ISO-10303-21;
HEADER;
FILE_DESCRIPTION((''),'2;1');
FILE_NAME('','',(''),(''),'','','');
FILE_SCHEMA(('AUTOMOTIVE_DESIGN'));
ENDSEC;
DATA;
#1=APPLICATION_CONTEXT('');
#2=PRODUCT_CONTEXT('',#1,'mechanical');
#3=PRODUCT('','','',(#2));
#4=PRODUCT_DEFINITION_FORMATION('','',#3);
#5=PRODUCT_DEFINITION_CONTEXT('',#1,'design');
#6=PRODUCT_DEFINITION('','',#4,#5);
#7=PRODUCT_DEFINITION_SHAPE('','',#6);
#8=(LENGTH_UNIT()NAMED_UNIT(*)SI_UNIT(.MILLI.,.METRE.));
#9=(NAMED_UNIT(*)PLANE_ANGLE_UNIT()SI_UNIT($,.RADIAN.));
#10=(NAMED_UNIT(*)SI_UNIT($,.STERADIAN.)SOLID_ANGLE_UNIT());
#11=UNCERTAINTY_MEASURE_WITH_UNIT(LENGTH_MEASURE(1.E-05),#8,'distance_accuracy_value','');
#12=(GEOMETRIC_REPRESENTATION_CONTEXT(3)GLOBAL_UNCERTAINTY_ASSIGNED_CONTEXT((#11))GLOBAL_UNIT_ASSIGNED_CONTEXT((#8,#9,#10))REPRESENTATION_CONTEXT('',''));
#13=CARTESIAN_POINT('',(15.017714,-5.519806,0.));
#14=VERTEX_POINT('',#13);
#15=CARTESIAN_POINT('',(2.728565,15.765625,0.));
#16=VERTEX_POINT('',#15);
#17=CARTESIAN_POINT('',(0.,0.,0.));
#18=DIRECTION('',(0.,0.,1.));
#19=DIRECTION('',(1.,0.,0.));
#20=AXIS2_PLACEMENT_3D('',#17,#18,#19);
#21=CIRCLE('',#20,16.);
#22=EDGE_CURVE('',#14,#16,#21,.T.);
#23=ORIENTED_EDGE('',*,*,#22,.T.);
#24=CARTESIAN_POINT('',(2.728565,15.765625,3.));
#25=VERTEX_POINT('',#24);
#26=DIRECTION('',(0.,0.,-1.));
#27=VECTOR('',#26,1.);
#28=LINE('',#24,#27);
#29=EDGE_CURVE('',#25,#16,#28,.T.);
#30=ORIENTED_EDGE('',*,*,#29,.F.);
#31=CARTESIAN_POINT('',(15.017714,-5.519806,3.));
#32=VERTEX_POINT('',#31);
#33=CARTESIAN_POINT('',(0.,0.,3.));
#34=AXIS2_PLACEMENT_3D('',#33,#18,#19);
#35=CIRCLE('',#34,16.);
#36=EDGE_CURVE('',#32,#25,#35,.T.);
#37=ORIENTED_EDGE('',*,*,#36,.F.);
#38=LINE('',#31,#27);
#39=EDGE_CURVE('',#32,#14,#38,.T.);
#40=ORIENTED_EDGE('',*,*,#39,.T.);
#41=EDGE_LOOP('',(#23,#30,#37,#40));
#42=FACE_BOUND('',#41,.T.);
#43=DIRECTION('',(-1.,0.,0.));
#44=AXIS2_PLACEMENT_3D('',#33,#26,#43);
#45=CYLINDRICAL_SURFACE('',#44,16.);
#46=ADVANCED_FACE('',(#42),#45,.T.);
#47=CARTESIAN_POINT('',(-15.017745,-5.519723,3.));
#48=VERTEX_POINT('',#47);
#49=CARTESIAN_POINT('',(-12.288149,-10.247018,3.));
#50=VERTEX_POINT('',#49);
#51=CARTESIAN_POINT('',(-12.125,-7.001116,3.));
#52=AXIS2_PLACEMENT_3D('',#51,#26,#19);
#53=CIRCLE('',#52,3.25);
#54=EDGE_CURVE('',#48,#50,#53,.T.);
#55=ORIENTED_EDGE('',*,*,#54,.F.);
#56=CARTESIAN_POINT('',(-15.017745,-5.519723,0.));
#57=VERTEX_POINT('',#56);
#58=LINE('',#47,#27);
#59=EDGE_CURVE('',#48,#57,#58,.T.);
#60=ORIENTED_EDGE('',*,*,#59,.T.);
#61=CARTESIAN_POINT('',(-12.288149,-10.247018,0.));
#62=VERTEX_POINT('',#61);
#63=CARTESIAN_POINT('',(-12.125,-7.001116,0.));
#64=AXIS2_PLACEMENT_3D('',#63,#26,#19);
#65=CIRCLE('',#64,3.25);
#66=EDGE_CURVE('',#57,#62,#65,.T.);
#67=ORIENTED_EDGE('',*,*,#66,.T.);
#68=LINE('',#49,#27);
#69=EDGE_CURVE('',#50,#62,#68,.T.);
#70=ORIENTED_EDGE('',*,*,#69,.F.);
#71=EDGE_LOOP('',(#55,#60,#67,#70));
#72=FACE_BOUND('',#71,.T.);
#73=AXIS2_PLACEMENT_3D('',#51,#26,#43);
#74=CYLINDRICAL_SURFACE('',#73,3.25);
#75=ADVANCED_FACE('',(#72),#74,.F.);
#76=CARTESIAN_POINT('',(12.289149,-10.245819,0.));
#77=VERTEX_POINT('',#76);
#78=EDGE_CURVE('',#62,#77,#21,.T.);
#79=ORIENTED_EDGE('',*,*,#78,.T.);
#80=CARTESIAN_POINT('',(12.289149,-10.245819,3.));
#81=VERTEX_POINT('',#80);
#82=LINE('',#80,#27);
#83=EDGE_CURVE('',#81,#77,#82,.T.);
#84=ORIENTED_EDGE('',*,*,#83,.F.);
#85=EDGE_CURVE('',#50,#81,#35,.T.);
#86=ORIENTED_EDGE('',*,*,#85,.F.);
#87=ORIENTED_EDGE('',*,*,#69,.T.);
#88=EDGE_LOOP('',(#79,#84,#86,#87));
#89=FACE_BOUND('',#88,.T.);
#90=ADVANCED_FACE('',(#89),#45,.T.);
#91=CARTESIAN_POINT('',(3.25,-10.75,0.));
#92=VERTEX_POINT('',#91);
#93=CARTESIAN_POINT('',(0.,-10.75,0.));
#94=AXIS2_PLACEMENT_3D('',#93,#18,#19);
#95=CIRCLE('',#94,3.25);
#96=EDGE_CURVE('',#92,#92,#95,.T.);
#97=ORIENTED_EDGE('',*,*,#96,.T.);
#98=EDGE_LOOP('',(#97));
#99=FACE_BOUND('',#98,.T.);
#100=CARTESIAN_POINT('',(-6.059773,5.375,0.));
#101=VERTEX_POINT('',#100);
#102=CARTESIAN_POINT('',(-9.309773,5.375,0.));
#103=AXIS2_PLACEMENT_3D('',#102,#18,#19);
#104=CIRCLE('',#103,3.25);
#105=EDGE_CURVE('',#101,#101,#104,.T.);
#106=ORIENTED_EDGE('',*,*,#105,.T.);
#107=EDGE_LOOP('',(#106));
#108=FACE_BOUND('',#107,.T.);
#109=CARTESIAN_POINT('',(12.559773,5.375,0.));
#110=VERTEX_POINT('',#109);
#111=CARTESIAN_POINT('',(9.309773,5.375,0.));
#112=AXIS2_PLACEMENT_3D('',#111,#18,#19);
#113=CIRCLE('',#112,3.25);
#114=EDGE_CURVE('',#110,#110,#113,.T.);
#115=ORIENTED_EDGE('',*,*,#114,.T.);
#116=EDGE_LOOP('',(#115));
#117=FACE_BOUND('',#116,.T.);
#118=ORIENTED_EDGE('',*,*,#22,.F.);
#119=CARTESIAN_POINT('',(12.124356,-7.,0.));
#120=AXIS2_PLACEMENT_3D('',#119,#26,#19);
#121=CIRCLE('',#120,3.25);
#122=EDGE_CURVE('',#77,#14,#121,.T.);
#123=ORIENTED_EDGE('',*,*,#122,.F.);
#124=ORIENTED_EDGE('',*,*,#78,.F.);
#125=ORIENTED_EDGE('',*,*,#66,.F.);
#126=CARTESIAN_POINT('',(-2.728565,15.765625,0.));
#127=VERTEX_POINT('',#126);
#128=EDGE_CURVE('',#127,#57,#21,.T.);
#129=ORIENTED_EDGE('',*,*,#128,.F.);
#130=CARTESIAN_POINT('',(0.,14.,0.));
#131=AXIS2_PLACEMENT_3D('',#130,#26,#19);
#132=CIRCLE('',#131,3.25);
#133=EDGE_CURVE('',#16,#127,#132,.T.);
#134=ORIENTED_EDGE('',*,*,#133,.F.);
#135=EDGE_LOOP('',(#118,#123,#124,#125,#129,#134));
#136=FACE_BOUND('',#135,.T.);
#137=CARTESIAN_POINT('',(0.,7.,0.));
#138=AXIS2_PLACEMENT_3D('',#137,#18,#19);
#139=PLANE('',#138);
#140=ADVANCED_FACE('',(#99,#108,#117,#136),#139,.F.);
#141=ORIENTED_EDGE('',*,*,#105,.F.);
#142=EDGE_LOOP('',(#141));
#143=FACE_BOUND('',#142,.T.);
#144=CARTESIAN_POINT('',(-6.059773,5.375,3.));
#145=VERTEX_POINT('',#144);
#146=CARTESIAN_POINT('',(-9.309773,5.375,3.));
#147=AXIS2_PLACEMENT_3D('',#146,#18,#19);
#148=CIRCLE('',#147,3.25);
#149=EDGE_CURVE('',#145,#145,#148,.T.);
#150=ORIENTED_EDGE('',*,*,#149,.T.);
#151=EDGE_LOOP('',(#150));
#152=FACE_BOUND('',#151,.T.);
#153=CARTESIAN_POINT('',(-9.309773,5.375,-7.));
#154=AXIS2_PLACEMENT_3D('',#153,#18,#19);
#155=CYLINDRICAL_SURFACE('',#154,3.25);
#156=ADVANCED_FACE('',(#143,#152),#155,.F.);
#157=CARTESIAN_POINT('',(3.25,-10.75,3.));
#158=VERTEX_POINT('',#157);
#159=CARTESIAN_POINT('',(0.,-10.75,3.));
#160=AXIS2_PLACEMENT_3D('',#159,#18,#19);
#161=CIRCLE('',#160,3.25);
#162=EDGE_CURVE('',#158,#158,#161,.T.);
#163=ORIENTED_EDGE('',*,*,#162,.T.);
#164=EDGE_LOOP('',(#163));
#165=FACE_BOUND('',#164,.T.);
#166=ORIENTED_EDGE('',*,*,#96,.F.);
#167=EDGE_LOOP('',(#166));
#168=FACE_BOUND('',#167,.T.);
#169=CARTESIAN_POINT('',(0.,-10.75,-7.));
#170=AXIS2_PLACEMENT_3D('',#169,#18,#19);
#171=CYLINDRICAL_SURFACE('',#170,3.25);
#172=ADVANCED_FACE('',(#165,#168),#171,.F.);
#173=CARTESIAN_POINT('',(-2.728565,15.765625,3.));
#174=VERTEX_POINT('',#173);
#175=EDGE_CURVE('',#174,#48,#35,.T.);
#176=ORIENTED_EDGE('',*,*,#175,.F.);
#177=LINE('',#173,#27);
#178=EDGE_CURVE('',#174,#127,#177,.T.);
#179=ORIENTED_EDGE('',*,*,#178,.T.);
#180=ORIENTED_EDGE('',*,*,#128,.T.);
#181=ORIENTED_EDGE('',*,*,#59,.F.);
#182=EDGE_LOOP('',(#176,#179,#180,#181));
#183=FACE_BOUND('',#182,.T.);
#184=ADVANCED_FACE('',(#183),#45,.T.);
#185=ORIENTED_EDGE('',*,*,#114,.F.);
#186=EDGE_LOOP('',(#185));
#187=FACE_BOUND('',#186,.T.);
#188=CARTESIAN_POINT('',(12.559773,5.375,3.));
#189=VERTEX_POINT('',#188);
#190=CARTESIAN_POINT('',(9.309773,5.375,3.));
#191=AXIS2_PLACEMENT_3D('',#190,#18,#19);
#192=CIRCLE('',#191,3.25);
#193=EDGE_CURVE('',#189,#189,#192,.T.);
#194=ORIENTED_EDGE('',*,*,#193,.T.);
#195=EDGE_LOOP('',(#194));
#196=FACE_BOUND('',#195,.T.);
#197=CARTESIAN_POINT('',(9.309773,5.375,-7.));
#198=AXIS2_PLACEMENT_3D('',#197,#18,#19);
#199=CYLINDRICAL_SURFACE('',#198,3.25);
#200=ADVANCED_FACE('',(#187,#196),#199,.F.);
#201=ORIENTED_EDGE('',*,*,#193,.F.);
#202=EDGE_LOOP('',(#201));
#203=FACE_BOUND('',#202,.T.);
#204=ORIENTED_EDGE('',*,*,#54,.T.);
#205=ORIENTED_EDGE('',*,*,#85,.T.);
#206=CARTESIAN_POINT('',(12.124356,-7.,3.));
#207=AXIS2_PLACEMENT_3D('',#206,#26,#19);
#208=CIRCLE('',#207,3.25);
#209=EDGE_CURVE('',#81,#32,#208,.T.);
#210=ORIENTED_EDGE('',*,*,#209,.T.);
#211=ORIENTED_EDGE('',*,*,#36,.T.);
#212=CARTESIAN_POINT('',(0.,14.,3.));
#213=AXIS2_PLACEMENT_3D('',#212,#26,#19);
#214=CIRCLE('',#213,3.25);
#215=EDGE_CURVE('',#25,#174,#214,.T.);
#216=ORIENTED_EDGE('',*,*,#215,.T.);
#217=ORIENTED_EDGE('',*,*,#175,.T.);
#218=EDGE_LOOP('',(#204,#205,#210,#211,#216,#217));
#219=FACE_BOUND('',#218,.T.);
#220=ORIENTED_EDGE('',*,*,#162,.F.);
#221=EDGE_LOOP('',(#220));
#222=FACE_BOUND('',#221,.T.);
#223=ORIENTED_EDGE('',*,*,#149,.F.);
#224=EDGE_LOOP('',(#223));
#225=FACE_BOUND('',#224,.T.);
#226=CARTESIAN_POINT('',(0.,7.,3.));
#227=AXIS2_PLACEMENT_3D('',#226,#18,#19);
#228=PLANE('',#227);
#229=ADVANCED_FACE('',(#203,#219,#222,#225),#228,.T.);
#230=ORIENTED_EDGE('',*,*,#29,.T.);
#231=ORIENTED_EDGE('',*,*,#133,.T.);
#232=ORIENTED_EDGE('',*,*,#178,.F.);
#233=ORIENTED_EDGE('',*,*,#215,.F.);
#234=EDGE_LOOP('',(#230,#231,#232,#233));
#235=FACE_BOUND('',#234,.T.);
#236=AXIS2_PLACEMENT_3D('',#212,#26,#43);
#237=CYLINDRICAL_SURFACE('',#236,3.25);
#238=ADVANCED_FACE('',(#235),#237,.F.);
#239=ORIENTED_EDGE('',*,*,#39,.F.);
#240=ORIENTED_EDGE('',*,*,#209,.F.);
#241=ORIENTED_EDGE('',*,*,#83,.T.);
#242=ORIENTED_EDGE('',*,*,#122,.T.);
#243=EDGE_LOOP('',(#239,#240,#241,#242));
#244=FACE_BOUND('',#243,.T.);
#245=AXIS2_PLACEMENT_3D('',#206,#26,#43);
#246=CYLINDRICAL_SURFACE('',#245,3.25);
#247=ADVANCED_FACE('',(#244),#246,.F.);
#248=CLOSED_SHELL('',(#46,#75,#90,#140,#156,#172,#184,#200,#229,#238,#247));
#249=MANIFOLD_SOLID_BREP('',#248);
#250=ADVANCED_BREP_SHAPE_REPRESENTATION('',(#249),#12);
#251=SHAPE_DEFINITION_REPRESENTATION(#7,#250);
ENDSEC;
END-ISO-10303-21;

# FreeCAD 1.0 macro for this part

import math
import FreeCAD as App
import Part
import Sketcher
from FreeCAD import Vector

doc = App.newDocument("Part")
body = doc.addObject("PartDesign::Body", "Body")

sketch1 = body.newObject("Sketcher::SketchObject", "Sketch")
sketch1.AttachmentSupport = (doc.getObject("XY_Plane"), [""])
sketch1.MapMode = "FlatFace"
sketch1.addGeometry([
    Part.ArcOfCircle(Part.Circle(Vector(0, 0, 0), Vector(0, 0, 1), 16), math.radians(-140), math.radians(-40)),
    Part.ArcOfCircle(Part.Circle(Vector(12.1, -7, 0), Vector(0, 0, 1), 3.2), math.radians(27), math.radians(273)),
    Part.ArcOfCircle(Part.Circle(Vector(0, 0, 0), Vector(0, 0, 1), 16), math.radians(-20), math.radians(80)),
    Part.ArcOfCircle(Part.Circle(Vector(0, 14, 0), Vector(0, 0, 1), 3.2), math.radians(147), math.radians(393)),
    Part.ArcOfCircle(Part.Circle(Vector(0, 0, 0), Vector(0, 0, 1), 16), math.radians(100), math.radians(200)),
    Part.ArcOfCircle(Part.Circle(Vector(-12.1, -7, 0), Vector(0, 0, 1), 3.2), math.radians(-93), math.radians(153)),
], False)
sketch1.addConstraint([
    Sketcher.Constraint("Coincident", 0, 2, 1, 2),
    Sketcher.Constraint("Coincident", 1, 1, 2, 1),
    Sketcher.Constraint("Coincident", 2, 2, 3, 2),
    Sketcher.Constraint("Coincident", 3, 1, 4, 1),
    Sketcher.Constraint("Coincident", 4, 2, 5, 2),
    Sketcher.Constraint("Coincident", 5, 1, 0, 1),
    Sketcher.Constraint("Coincident", 0, 3, -1, 1),
    Sketcher.Constraint("Coincident", 2, 3, -1, 1),
    Sketcher.Constraint("Coincident", 4, 3, -1, 1),
    Sketcher.Constraint("Equal", 0, 2),
    Sketcher.Constraint("Equal", 1, 3),
    Sketcher.Constraint("Equal", 2, 4),
    Sketcher.Constraint("Equal", 3, 5),
    Sketcher.Constraint("PointOnObject", 3, 3, -2),
    Sketcher.Constraint("Radius", 0, 16.0),
    Sketcher.Constraint("Radius", 1, 3.25),
    Sketcher.Constraint("DistanceY", 1, 3, -1, 1, 7.0),
    Sketcher.Constraint("DistanceY", -1, 1, 3, 3, 14.0),
    Sketcher.Constraint("DistanceX", 5, 3, -1, 1, 12.125),
    Sketcher.Constraint("DistanceX", -1, 1, 0, 2, 12.289149),
    Sketcher.Constraint("DistanceX", 5, 1, -1, 1, 12.288149),
])
pad1 = body.newObject("PartDesign::Pad", "Pad")
pad1.Profile = sketch1
pad1.Length = 3

sketch2 = body.newObject("Sketcher::SketchObject", "Sketch001")
sketch2.AttachmentSupport = (doc.getObject("XY_Plane"), [""])
sketch2.MapMode = "FlatFace"
sketch2.AttachmentOffset = App.Placement(Vector(0, 0, 3), App.Rotation())
sketch2.addGeometry([
    Part.Circle(Vector(-9.3, 5.4, 0), Vector(0, 0, 1), 3.2),
    Part.Circle(Vector(9.3, 5.4, 0), Vector(0, 0, 1), 3.2),
    Part.Circle(Vector(0, -10.8, 0), Vector(0, 0, 1), 3.2),
], False)
sketch2.addConstraint([
    Sketcher.Constraint("Equal", 0, 1),
    Sketcher.Constraint("Equal", 1, 2),
    Sketcher.Constraint("Symmetric", 0, 3, 1, 3, -2),
    Sketcher.Constraint("PointOnObject", 2, 3, -2),
    Sketcher.Constraint("Diameter", 0, 6.5),
    Sketcher.Constraint("DistanceY", 2, 3, -1, 1, 10.75),
    Sketcher.Constraint("DistanceY", -1, 1, 0, 3, 5.375),
    Sketcher.Constraint("DistanceX", 0, 3, -1, 1, 9.309773),
])
pocket1 = body.newObject("PartDesign::Pocket", "Pocket")
pocket1.Profile = sketch2
pocket1.Length = 10

doc.recompute()
